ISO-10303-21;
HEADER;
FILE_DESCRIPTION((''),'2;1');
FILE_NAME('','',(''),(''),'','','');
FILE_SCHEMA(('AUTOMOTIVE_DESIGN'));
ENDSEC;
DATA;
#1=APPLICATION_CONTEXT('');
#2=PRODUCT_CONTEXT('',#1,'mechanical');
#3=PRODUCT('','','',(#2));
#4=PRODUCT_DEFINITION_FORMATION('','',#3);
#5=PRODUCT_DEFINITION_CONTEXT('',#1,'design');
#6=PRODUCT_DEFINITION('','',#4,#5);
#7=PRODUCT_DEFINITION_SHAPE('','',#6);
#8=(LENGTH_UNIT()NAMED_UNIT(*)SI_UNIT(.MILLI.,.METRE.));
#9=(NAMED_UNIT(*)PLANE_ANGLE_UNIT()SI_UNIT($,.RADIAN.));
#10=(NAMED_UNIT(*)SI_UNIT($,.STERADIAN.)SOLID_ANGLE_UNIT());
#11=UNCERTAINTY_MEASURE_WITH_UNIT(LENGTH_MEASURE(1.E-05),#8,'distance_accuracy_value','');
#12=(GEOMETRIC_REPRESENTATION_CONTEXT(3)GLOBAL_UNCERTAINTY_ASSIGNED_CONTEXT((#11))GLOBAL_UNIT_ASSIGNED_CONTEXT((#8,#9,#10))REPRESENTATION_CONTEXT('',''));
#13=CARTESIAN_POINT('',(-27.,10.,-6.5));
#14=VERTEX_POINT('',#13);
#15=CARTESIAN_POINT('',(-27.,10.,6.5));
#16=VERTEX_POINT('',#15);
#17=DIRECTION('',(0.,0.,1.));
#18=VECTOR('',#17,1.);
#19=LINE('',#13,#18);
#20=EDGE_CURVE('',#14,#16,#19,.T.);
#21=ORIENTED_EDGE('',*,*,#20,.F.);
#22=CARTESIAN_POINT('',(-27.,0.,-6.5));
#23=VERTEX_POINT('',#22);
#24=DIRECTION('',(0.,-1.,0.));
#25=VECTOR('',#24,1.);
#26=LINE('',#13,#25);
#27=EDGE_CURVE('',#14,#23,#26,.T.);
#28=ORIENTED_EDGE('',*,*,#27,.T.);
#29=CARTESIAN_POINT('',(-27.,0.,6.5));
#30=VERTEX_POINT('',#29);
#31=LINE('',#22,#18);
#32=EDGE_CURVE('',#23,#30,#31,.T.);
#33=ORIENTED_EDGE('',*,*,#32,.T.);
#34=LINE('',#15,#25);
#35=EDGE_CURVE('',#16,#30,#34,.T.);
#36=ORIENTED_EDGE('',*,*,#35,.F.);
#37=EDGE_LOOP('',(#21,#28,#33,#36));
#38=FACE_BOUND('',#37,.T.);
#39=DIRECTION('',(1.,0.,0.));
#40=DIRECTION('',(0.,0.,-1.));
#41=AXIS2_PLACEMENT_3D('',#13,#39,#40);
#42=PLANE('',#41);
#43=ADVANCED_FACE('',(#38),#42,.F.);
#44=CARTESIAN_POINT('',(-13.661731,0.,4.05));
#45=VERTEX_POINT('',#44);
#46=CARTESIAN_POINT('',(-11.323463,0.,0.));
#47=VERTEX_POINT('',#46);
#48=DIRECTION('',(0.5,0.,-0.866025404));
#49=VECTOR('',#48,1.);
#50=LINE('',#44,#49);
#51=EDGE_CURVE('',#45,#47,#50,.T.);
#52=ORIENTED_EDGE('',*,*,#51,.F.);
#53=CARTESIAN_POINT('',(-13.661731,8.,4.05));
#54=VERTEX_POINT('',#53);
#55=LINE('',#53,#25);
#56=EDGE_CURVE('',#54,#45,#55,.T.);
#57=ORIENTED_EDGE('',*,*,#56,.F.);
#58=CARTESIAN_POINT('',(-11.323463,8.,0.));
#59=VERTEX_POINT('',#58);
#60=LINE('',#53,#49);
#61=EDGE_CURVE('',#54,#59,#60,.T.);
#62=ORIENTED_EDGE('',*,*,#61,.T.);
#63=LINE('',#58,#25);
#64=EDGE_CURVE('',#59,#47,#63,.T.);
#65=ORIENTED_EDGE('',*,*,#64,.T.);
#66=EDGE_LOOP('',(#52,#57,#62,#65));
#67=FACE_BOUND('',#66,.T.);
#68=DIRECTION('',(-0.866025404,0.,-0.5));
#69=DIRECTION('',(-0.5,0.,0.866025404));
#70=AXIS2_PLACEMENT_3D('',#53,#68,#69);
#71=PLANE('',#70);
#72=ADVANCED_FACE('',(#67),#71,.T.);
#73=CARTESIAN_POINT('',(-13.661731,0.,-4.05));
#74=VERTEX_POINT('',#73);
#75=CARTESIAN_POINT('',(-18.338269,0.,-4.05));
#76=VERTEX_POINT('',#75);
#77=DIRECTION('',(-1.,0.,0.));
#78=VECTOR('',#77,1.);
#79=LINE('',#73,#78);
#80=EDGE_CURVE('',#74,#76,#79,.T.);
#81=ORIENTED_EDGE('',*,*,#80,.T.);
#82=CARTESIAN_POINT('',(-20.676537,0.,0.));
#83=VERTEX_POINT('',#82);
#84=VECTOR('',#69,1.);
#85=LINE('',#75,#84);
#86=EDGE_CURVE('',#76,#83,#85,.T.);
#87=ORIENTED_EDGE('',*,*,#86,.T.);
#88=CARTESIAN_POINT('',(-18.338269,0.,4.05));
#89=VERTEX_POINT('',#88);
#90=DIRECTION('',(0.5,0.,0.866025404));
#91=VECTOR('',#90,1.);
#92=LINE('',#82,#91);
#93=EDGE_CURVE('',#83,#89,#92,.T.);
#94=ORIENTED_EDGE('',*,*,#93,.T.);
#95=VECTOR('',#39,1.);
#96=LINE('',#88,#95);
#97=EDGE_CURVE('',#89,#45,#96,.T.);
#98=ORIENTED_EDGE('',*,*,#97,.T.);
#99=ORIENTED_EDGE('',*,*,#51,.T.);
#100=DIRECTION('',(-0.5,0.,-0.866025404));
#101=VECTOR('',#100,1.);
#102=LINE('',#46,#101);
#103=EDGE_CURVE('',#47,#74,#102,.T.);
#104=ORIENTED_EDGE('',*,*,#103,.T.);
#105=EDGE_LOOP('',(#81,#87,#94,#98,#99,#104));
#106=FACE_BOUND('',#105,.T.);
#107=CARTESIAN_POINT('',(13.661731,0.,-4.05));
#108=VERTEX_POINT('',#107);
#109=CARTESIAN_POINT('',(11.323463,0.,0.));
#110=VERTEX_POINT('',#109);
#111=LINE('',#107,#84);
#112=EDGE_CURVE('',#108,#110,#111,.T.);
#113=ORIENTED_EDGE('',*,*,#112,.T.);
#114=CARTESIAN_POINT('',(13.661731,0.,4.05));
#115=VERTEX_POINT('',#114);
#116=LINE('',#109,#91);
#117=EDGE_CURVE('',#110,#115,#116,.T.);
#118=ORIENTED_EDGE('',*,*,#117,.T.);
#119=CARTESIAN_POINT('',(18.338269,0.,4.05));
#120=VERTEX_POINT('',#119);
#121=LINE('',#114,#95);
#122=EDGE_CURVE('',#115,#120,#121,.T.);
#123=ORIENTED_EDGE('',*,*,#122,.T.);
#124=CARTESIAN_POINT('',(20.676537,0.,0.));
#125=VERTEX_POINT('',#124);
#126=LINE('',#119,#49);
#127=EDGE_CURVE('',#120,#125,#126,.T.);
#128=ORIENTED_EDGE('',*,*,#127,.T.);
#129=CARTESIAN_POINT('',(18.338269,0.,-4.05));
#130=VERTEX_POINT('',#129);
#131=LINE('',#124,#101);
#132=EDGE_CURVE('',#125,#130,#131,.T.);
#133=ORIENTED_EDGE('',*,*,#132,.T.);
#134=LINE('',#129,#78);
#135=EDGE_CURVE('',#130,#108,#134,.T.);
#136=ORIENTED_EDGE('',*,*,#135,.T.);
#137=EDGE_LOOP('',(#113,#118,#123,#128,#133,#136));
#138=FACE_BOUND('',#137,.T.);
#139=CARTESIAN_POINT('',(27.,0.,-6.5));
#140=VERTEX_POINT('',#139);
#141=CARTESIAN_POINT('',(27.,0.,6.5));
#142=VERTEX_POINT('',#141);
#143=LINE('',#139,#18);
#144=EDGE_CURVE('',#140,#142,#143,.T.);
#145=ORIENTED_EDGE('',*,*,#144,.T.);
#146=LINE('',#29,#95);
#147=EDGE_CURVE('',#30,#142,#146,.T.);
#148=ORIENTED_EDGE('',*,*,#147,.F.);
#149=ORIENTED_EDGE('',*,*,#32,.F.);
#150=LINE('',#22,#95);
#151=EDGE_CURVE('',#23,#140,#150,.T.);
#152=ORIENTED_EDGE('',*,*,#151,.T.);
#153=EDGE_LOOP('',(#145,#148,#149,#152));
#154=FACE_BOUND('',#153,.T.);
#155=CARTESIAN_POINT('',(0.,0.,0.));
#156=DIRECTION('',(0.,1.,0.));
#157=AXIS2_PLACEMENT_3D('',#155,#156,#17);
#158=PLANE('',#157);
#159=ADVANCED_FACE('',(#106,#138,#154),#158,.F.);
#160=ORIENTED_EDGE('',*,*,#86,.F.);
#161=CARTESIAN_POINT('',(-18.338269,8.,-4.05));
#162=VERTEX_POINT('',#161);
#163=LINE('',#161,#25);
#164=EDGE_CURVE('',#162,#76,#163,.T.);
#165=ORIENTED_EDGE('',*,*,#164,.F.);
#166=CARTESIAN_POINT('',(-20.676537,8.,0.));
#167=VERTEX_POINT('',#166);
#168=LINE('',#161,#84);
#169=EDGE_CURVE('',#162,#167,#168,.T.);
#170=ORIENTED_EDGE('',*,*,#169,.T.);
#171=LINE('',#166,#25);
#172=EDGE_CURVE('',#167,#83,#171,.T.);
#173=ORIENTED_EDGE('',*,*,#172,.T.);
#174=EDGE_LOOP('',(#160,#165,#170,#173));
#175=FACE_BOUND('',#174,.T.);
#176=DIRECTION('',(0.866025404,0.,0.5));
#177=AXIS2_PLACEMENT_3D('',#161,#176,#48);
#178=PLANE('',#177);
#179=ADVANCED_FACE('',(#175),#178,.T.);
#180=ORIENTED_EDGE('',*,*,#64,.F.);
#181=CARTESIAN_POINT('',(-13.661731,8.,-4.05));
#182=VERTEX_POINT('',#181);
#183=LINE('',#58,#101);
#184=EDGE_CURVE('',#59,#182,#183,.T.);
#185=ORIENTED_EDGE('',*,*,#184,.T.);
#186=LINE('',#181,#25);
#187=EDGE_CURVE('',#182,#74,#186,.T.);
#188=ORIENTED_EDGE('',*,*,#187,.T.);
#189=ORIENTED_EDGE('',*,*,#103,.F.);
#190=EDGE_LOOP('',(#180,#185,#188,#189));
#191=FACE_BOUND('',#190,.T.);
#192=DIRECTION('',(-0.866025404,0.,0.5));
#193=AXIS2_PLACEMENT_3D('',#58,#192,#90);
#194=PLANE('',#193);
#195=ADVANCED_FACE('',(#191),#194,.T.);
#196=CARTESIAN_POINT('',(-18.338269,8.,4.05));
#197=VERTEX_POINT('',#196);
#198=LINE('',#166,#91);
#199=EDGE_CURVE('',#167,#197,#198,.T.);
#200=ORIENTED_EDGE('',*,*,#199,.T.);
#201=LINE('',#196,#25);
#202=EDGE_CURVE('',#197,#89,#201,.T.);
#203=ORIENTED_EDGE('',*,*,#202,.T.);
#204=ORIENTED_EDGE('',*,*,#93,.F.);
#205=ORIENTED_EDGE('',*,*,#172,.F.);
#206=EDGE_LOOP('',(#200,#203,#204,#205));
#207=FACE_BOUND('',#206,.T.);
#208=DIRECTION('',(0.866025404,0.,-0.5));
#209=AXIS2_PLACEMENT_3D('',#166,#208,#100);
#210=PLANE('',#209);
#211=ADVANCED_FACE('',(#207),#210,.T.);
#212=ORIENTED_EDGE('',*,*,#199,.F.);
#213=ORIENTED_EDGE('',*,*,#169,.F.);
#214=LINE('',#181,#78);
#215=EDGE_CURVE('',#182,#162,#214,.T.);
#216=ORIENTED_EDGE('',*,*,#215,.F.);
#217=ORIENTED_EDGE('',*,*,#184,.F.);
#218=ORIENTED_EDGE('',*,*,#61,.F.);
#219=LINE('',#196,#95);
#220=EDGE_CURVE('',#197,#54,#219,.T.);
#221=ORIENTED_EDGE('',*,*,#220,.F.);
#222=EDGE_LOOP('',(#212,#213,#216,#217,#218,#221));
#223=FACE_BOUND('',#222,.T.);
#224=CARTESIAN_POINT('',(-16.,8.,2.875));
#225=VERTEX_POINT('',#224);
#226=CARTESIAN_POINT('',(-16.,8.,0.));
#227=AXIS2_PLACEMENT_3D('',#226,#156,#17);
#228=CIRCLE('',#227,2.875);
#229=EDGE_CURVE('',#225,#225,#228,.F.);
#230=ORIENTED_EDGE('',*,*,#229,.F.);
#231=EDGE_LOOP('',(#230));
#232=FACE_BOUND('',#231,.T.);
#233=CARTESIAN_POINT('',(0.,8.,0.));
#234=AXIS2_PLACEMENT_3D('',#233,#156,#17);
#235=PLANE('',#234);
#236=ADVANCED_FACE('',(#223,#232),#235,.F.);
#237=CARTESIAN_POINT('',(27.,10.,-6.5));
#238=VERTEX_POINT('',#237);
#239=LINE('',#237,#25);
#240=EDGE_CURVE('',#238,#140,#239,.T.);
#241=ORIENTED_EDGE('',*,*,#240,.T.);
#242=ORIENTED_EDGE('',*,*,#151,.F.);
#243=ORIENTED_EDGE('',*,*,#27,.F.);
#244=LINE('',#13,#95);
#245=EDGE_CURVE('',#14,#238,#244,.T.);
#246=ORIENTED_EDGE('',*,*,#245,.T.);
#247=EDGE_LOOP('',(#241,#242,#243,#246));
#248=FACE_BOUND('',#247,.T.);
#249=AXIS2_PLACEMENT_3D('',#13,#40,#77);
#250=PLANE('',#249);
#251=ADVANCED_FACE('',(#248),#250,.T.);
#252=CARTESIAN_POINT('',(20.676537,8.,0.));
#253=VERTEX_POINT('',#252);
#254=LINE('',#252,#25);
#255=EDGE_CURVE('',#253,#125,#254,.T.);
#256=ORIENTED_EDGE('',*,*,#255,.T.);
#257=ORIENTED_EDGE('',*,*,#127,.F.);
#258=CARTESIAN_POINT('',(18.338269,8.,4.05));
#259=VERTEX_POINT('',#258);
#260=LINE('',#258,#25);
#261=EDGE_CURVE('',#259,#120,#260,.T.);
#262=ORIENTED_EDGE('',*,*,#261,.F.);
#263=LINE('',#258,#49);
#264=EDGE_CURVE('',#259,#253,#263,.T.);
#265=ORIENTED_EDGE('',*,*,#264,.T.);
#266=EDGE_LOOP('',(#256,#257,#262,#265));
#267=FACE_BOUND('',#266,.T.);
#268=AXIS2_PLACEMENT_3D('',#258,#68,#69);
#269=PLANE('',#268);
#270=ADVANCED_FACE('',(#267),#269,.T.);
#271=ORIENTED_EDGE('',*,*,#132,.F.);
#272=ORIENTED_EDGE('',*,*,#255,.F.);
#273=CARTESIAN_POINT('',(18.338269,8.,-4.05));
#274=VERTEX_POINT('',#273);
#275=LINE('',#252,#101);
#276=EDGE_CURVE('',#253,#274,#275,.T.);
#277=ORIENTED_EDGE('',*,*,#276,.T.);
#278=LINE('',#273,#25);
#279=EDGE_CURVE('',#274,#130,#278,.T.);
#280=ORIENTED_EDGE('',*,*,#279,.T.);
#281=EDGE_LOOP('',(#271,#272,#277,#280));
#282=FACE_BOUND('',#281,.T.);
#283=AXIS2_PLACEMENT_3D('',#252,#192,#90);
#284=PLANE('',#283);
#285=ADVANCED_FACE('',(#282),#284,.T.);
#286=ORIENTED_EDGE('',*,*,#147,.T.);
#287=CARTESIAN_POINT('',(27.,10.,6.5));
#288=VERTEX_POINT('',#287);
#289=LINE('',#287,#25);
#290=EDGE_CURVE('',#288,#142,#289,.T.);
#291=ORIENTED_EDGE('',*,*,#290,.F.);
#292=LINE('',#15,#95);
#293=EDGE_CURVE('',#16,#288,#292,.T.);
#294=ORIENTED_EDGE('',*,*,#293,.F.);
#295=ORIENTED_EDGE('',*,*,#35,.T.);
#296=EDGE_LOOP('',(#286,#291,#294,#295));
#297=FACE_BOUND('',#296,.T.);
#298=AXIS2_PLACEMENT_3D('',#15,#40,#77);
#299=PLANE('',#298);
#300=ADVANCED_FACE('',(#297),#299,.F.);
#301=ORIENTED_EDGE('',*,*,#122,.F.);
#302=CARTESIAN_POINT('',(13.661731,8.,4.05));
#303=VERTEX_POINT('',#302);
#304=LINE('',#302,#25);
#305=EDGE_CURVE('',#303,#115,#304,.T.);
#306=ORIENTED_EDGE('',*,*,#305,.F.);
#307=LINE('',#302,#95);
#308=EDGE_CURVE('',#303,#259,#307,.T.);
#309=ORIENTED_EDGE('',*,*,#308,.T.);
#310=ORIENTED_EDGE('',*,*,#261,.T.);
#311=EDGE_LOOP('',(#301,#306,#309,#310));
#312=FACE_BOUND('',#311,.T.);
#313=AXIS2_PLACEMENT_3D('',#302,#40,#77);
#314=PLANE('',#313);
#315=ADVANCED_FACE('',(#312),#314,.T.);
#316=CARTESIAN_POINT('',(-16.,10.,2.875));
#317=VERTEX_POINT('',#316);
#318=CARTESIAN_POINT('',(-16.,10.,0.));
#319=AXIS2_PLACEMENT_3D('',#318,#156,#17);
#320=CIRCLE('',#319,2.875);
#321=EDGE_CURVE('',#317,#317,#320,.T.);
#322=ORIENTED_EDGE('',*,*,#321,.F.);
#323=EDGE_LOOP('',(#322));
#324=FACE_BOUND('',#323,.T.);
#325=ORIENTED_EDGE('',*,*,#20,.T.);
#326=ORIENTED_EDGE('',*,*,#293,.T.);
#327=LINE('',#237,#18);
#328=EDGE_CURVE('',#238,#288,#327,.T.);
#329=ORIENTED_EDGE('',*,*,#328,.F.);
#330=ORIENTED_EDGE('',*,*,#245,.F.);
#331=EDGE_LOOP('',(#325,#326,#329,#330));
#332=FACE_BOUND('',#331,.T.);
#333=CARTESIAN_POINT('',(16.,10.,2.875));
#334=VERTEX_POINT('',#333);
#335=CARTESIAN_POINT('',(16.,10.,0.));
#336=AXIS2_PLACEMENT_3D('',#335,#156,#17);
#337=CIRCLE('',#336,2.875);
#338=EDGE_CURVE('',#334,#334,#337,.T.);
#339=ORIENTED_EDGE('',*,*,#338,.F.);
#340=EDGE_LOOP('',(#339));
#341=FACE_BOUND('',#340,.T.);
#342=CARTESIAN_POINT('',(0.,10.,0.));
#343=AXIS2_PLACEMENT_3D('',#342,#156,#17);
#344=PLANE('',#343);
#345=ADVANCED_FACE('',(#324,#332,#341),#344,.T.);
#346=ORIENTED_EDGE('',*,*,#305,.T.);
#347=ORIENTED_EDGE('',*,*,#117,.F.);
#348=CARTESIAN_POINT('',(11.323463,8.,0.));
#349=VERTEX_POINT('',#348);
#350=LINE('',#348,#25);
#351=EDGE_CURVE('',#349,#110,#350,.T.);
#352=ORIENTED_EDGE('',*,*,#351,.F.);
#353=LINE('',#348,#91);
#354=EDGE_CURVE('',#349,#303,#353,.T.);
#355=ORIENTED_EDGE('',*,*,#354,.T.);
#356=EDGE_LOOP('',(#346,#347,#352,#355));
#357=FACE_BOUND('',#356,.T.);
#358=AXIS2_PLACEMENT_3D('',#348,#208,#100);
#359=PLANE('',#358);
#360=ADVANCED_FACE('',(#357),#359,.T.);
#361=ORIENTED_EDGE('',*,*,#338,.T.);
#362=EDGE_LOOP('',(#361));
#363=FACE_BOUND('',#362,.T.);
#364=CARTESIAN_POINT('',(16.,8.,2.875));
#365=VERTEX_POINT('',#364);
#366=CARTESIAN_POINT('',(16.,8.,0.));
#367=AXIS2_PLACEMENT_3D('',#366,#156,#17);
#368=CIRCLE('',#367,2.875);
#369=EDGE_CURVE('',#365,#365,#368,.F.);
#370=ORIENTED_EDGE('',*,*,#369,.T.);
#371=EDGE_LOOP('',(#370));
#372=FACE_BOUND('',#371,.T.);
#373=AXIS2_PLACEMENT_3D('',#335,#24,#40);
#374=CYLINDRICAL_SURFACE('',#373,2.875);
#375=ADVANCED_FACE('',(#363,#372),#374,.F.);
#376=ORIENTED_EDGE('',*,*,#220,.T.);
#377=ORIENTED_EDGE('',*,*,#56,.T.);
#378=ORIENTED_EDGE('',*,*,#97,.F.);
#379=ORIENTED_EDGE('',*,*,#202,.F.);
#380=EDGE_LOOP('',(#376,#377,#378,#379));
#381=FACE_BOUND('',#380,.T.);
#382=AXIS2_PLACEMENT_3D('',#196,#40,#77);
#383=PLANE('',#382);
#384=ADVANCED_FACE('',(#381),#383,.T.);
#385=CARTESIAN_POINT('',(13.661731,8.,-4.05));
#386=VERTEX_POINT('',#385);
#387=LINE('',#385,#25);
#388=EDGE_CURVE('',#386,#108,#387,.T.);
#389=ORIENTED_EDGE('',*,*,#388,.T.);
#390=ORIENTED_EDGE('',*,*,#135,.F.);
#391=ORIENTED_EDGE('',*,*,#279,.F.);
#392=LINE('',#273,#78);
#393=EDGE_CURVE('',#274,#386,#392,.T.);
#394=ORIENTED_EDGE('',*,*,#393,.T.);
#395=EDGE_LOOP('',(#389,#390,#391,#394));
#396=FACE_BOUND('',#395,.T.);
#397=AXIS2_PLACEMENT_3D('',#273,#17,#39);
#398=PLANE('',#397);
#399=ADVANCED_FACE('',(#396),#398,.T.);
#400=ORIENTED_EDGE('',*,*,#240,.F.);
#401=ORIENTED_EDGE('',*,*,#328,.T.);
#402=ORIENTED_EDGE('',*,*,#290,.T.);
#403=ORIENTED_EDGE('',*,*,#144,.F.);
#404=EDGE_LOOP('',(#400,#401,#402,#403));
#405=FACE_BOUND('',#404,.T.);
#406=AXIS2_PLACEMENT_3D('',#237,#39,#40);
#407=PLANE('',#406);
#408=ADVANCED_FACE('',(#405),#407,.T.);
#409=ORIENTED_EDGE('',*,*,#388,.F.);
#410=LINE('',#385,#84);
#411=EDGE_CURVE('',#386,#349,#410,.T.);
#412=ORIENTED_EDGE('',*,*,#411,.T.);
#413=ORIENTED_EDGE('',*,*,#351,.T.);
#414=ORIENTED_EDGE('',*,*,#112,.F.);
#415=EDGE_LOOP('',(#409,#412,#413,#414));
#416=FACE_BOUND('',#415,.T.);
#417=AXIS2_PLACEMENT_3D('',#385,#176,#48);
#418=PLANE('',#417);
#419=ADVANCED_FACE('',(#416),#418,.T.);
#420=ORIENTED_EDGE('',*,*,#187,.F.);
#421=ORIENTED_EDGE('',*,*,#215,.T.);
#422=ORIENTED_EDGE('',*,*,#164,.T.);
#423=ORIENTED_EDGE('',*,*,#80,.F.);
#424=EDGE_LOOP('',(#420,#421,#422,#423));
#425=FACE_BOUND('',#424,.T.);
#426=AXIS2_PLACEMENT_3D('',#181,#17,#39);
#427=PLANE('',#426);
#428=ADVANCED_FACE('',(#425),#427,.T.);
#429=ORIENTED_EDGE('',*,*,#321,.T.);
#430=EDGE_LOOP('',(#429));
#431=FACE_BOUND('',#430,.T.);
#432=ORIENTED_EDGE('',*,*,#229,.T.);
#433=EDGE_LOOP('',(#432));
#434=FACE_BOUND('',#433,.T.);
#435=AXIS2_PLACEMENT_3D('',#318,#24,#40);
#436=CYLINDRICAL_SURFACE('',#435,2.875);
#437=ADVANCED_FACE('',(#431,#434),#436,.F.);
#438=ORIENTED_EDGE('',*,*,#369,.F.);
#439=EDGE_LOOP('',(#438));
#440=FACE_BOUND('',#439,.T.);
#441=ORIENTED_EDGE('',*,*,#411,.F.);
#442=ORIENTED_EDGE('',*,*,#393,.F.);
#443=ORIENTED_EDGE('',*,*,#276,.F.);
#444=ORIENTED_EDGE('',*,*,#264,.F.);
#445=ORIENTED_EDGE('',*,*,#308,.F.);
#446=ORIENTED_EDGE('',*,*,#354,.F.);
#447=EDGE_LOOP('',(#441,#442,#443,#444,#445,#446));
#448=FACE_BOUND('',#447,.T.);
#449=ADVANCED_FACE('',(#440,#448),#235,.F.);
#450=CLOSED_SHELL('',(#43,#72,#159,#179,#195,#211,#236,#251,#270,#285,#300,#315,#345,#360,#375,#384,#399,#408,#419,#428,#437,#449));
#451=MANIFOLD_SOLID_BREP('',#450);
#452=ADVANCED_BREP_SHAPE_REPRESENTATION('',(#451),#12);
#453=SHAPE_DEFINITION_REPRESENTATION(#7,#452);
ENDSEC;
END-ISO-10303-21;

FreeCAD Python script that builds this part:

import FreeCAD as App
import Part
import Sketcher
from FreeCAD import Vector
Q = App.Units.Quantity

doc = App.newDocument("Part")
params = doc.addObject("Spreadsheet::Sheet", "Params")
for row, (alias, value) in enumerate([
    ("sketch1_width", "54 mm"),
    ("sketch1_height", "13 mm"),
    ("pad1_length", "10 mm"),
    ("pocket1_length", "8 mm"),
    ("sketch3_diameter", "5.75 mm"),
], start=1):
    params.set(f"A{row}", alias)
    params.set(f"B{row}", "=" + value)
    params.setAlias(f"B{row}", alias)

body = doc.addObject("PartDesign::Body", "Body")

# Sketch on XZ plane
sketch1 = body.newObject("Sketcher::SketchObject", "Sketch")
sketch1.AttachmentSupport = (doc.getObject("XZ_Plane"), [""])
sketch1.MapMode = "FlatFace"
sketch1.addGeometry([
    Part.LineSegment(Vector(-27, -6, 0), Vector(-27, 6, 0)),
    Part.LineSegment(Vector(-27, 6, 0), Vector(27, 6, 0)),
    Part.LineSegment(Vector(27, 6, 0), Vector(27, -6, 0)),
    Part.LineSegment(Vector(27, -6, 0), Vector(-27, -6, 0)),
], False)
sketch1.addConstraint([
    Sketcher.Constraint("Coincident", 0, 2, 1, 1),
    Sketcher.Constraint("Coincident", 1, 2, 2, 1),
    Sketcher.Constraint("Coincident", 2, 2, 3, 1),
    Sketcher.Constraint("Coincident", 3, 2, 0, 1),
    Sketcher.Constraint("Vertical", 0),
    Sketcher.Constraint("Horizontal", 1),
    Sketcher.Constraint("Vertical", 2),
    Sketcher.Constraint("Horizontal", 3),
    Sketcher.Constraint("Symmetric", 0, 2, 2, 2, -1, 1),
    Sketcher.Constraint("DistanceX", 1, 1, 1, 2, Q("54 mm")),
    Sketcher.Constraint("DistanceY", 0, 1, 0, 2, Q("13 mm")),
])
sketch1.setExpression("Constraints[9]", "Params.sketch1_width")
sketch1.setExpression("Constraints[10]", "Params.sketch1_height")
pad1 = body.newObject("PartDesign::Pad", "Pad")
pad1.Profile = sketch1
pad1.setExpression("Length", "Params.pad1_length")
pad1.Reversed = True

# Sketch on XZ plane
sketch2 = body.newObject("Sketcher::SketchObject", "Sketch001")
sketch2.AttachmentSupport = (doc.getObject("XZ_Plane"), [""])
sketch2.MapMode = "FlatFace"
sketch2.addGeometry([
    Part.LineSegment(Vector(-18.3, 4, 0), Vector(-13.7, 4, 0)),  # 0
    Part.LineSegment(Vector(-13.7, 4, 0), Vector(-11.3, 0, 0)),  # 1
    Part.LineSegment(Vector(-11.3, 0, 0), Vector(-13.7, -4, 0)),  # 2
    Part.LineSegment(Vector(-13.7, -4, 0), Vector(-18.3, -4, 0)),  # 3
    Part.LineSegment(Vector(-18.3, -4, 0), Vector(-20.7, 0, 0)),  # 4
    Part.LineSegment(Vector(-20.7, 0, 0), Vector(-18.3, 4, 0)),  # 5
    Part.LineSegment(Vector(20.7, 0, 0), Vector(18.3, -4, 0)),  # 6
    Part.LineSegment(Vector(18.3, -4, 0), Vector(13.7, -4, 0)),  # 7
    Part.LineSegment(Vector(13.7, -4, 0), Vector(11.3, 0, 0)),  # 8
    Part.LineSegment(Vector(11.3, 0, 0), Vector(13.7, 4, 0)),  # 9
    Part.LineSegment(Vector(13.7, 4, 0), Vector(18.3, 4, 0)),  # 10
    Part.LineSegment(Vector(18.3, 4, 0), Vector(20.7, 0, 0)),  # 11
], False)
sketch2.addConstraint([
    Sketcher.Constraint("Coincident", 0, 2, 1, 1),
    Sketcher.Constraint("Coincident", 1, 2, 2, 1),
    Sketcher.Constraint("Coincident", 2, 2, 3, 1),
    Sketcher.Constraint("Coincident", 3, 2, 4, 1),
    Sketcher.Constraint("Coincident", 4, 2, 5, 1),
    Sketcher.Constraint("Coincident", 5, 2, 0, 1),
    Sketcher.Constraint("Coincident", 6, 2, 7, 1),
    Sketcher.Constraint("Coincident", 7, 2, 8, 1),
    Sketcher.Constraint("Coincident", 8, 2, 9, 1),
    Sketcher.Constraint("Coincident", 9, 2, 10, 1),
    Sketcher.Constraint("Coincident", 10, 2, 11, 1),
    Sketcher.Constraint("Coincident", 11, 2, 6, 1),
    Sketcher.Constraint("Horizontal", 0),
    Sketcher.Constraint("Horizontal", 3),
    Sketcher.Constraint("Horizontal", 7),
    Sketcher.Constraint("Horizontal", 10),
    Sketcher.Constraint("Symmetric", 5, 2, 6, 2, -1, 1),
    Sketcher.Constraint("Symmetric", 1, 2, 8, 2, -1, 1),
    Sketcher.Constraint("Symmetric", 2, 2, 9, 2, -1, 1),
    Sketcher.Constraint("Symmetric", 4, 2, 11, 2, -1, 1),
    Sketcher.Constraint("Symmetric", 3, 2, 6, 2, -2),
    Sketcher.Constraint("PointOnObject", 1, 2, -1),
    Sketcher.Constraint("PointOnObject", 4, 2, -1),
    Sketcher.Constraint("Parallel", 1, 4),
    Sketcher.Constraint("Parallel", 2, 5),
    Sketcher.Constraint("Parallel", 4, 8),
    Sketcher.Constraint("Parallel", 8, 11),
    Sketcher.Constraint("Angle", 1, Q("-60 deg")),
    Sketcher.Constraint("DistanceX", 2, 2, 6, 2, Q("32 mm")),
    Sketcher.Constraint("DistanceY", 2, 2, 0, 2, Q("8.1 mm")),
    Sketcher.Constraint("DistanceX", 0, 1, 0, 2, Q("4.676537 mm")),
])
pocket1 = body.newObject("PartDesign::Pocket", "Pocket")
pocket1.Profile = sketch2
pocket1.setExpression("Length", "Params.pocket1_length")

# Sketch on XZ plane
sketch3 = body.newObject("Sketcher::SketchObject", "Sketch002")
sketch3.AttachmentSupport = (doc.getObject("XZ_Plane"), [""])
sketch3.MapMode = "FlatFace"
sketch3.addGeometry([
    Part.Circle(Vector(-16, 0, 0), Vector(0, 0, 1), 2.9),
    Part.Circle(Vector(16, 0, 0), Vector(0, 0, 1), 2.9),
], False)
sketch3.addConstraint([
    Sketcher.Constraint("Equal", 0, 1),
    Sketcher.Constraint("Symmetric", 0, 3, 1, 3, -1, 1),
    Sketcher.Constraint("PointOnObject", 0, 3, -1),
    Sketcher.Constraint("Diameter", 0, Q("5.75 mm")),
    Sketcher.Constraint("DistanceX", 0, 3, -1, 1, Q("16 mm")),
])
sketch3.setExpression("Constraints[3]", "Params.sketch3_diameter")
pocket2 = body.newObject("PartDesign::Pocket", "Pocket001")
pocket2.Profile = sketch3
pocket2.Type = "ThroughAll"

doc.recompute()
